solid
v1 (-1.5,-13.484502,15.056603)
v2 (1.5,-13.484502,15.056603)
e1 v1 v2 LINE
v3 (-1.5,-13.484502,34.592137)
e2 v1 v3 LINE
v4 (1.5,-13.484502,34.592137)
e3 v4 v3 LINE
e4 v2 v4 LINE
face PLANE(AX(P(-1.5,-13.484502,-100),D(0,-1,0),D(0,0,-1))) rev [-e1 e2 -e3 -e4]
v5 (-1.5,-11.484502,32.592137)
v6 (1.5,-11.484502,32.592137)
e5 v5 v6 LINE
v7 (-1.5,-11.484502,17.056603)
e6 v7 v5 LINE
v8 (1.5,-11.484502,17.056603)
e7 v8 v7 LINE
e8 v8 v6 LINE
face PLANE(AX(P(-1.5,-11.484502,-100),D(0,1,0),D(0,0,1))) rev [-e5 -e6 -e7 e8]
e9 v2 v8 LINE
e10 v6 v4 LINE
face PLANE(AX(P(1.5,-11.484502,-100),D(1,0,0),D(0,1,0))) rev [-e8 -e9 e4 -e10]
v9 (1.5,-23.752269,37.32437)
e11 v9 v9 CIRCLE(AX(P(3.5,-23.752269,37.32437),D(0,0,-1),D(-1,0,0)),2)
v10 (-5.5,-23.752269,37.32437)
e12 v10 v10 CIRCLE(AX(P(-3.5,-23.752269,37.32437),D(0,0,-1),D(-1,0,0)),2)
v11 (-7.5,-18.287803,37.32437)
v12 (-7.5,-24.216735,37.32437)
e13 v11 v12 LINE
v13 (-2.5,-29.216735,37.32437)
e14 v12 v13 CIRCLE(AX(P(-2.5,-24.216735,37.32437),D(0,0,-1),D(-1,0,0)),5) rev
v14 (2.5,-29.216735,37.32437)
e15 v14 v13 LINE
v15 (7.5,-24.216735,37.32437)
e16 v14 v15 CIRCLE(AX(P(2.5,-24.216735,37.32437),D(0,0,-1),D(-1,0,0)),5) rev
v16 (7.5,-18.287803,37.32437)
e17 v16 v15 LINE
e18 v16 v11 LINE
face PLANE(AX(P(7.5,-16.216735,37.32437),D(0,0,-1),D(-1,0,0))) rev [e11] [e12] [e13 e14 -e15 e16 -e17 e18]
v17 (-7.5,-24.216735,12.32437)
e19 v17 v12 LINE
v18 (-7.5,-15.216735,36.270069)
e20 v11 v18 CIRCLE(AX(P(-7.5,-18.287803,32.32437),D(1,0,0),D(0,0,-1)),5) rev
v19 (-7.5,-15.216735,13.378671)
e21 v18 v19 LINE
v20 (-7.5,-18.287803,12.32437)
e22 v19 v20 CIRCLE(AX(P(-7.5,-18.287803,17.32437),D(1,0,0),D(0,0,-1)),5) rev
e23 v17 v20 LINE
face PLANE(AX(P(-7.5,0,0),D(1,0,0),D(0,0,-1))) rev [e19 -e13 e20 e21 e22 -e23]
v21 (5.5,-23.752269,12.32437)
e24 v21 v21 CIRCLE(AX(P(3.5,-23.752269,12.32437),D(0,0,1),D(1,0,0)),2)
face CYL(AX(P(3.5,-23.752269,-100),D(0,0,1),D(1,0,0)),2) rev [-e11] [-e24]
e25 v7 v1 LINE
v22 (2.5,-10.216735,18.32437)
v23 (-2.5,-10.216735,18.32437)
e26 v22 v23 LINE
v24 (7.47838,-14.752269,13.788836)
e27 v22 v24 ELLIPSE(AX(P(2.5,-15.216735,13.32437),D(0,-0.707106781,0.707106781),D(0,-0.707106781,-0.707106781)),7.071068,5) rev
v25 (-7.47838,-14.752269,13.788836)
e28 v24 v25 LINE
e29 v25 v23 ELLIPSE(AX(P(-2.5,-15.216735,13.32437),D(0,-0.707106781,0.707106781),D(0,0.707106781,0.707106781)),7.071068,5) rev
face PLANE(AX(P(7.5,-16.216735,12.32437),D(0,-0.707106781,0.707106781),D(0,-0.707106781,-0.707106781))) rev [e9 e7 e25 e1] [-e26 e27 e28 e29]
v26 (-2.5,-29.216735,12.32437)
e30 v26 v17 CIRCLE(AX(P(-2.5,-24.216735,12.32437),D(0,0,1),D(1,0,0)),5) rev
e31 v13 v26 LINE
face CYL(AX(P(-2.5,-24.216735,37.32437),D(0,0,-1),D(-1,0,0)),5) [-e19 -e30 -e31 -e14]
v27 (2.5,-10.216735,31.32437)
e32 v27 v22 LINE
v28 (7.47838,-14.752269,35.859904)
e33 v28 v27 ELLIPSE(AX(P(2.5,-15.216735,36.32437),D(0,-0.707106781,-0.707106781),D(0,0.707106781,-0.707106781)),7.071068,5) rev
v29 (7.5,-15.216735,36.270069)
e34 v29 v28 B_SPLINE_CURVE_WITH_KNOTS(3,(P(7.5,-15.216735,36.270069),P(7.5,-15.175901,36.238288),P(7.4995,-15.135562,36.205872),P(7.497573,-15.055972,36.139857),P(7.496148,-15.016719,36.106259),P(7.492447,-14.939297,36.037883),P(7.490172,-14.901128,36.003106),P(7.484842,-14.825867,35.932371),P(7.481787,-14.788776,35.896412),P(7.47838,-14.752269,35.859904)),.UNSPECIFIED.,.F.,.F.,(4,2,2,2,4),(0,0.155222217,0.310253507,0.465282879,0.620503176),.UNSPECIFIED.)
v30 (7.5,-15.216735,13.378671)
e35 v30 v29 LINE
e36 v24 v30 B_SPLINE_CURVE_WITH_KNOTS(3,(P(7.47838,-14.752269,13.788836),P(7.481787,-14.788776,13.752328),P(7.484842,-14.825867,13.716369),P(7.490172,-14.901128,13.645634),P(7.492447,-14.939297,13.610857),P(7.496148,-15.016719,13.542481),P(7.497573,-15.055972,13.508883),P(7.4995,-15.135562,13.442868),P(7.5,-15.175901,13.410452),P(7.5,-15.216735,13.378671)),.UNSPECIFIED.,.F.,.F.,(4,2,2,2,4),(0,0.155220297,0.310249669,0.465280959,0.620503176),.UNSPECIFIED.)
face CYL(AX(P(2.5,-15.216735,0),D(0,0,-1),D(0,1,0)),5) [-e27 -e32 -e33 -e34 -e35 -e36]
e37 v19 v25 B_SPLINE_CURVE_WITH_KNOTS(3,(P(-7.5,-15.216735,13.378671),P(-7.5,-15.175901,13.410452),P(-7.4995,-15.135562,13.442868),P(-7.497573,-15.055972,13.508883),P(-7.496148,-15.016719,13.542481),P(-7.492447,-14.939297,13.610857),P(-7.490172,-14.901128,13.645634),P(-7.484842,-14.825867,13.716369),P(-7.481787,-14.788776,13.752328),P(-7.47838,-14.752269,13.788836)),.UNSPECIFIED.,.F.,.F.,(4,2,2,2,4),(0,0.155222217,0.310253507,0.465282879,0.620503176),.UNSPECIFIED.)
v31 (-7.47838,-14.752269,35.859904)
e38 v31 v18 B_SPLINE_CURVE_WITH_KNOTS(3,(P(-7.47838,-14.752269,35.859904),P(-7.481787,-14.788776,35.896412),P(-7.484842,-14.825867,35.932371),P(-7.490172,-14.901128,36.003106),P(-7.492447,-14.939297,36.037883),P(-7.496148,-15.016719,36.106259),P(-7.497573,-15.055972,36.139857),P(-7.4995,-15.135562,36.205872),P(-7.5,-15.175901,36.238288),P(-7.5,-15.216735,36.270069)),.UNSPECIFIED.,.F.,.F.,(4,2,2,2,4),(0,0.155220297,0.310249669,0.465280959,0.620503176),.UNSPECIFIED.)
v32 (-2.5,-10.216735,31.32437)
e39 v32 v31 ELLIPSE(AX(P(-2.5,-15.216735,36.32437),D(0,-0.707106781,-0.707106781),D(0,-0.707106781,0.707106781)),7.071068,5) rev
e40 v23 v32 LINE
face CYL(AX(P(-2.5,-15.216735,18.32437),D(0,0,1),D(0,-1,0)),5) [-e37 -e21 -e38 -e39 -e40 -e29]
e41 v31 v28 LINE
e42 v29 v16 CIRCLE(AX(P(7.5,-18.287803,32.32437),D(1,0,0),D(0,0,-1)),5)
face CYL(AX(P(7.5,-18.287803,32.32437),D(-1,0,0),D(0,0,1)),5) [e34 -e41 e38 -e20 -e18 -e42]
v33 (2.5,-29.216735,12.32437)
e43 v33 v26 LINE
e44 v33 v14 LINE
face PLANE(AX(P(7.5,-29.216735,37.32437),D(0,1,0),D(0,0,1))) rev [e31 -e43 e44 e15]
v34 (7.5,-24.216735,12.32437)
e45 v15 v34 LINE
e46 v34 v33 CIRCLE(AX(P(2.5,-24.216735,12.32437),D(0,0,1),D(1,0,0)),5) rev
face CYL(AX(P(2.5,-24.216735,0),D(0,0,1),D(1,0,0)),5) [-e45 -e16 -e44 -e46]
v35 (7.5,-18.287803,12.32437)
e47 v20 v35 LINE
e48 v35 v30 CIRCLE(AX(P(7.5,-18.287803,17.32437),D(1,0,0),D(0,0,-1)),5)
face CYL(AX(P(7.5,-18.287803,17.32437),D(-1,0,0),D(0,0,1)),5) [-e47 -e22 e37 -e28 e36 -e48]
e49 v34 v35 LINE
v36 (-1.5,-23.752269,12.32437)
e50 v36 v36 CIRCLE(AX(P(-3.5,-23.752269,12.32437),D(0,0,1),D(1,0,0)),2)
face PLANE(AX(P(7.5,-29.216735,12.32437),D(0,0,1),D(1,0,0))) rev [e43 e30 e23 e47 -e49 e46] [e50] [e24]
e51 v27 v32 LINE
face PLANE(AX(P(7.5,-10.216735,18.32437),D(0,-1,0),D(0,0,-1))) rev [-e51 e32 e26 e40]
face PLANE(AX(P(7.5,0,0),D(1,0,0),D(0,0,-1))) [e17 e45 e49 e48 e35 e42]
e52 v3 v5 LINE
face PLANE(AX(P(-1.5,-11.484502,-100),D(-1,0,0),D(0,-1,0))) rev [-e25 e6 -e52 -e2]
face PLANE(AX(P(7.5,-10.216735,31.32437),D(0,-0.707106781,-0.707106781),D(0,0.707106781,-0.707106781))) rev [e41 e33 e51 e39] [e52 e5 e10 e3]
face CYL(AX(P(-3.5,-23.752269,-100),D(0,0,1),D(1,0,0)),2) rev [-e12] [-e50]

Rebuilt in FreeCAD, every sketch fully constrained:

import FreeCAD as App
import Part
import Sketcher


def edges_at(feature, points):
    """Names of the edges that pass closest to the given points."""
    edges = feature.Shape.Edges
    near = lambda p: min(range(len(edges)), key=lambda i: edges[i].distToShape(Part.Vertex(*p))[0])
    return sorted({f"Edge{near(p) + 1}" for p in points})

doc = App.newDocument("Part")
params = doc.addObject("Spreadsheet::Sheet", "Params")
for row, (alias, value) in enumerate([
    ("sketch1_width", "13 mm"),
    ("sketch1_height", "25 mm"),
    ("pad1_length", "15 mm"),
    ("fillet_radius", "5 mm"),
    ("sketch2_diameter", "4 mm"),
    ("sketch2_width", "3 mm"),
    ("sketch2_height", "2 mm"),
    ("pocket1_length", "200 mm"),
    ("fillet2_radius", "5 mm"),
    ("fillet3_radius", "5 mm"),
], start=1):
    params.set(f"A{row}", alias)
    params.set(f"B{row}", "=" + value)
    params.setAlias(f"B{row}", alias)

body = doc.addObject("PartDesign::Body", "Body")

sketch1 = body.newObject("Sketcher::SketchObject", "Sketch")
sketch1.AttachmentSupport = (doc.getObject("YZ_Plane"), [""])
sketch1.MapMode = "FlatFace"
sketch1.addGeometry([
    Part.LineSegment(App.Vector(-10.216735, 31.32437, 0), App.Vector(-16.216735, 37.32437, 0)),
    Part.LineSegment(App.Vector(-16.216735, 37.32437, 0), App.Vector(-29.216735, 37.32437, 0)),
    Part.LineSegment(App.Vector(-29.216735, 37.32437, 0), App.Vector(-29.216735, 12.32437, 0)),
    Part.LineSegment(App.Vector(-29.216735, 12.32437, 0), App.Vector(-16.216735, 12.32437, 0)),
    Part.LineSegment(App.Vector(-16.216735, 12.32437, 0), App.Vector(-10.216735, 18.32437, 0)),
    Part.LineSegment(App.Vector(-10.216735, 18.32437, 0), App.Vector(-10.216735, 31.32437, 0)),
], False)
sketch1.addConstraint([
    Sketcher.Constraint("Coincident", 0, 2, 1, 1),
    Sketcher.Constraint("Coincident", 1, 2, 2, 1),
    Sketcher.Constraint("Coincident", 2, 2, 3, 1),
    Sketcher.Constraint("Coincident", 3, 2, 4, 1),
    Sketcher.Constraint("Coincident", 4, 2, 5, 1),
    Sketcher.Constraint("Coincident", 5, 2, 0, 1),
    Sketcher.Constraint("Horizontal", 1),
    Sketcher.Constraint("Vertical", 2),
    Sketcher.Constraint("Horizontal", 3),
    Sketcher.Constraint("Vertical", 5),
    Sketcher.Constraint("Perpendicular", 0, 4),
    Sketcher.Constraint("Vertical", 0, 2, 3, 2),
    Sketcher.Constraint("Equal", 3, 5),
    Sketcher.Constraint("Equal", 0, 4),
    Sketcher.Constraint("DistanceX", 1, 2, 1, 1, 13.0),
    Sketcher.Constraint("DistanceY", 2, 2, 2, 1, 25.0),
    Sketcher.Constraint("DistanceY", -1, 1, 0, 2, 37.32437),
    Sketcher.Constraint("DistanceX", 0, 2, -1, 1, 16.216735),
])
sketch1.setExpression("Constraints[14]", "Params.sketch1_width")
sketch1.setExpression("Constraints[15]", "Params.sketch1_height")
pad1 = body.newObject("PartDesign::Pad", "Pad")
pad1.Profile = sketch1
pad1.setExpression("Length", "Params.pad1_length")
pad1.Midplane = True
doc.recompute()

fillet = body.newObject("PartDesign::Fillet", "Fillet")
fillet.Base = (pad1, edges_at(pad1, [(0, -16.217, 12.324), (0, -16.217, 37.324)]))
fillet.setExpression("Radius", "Params.fillet_radius")

sketch2 = body.newObject("Sketcher::SketchObject", "Sketch001")
sketch2.AttachmentSupport = (doc.getObject("XY_Plane"), [""])
sketch2.MapMode = "FlatFace"
sketch2.addGeometry([
    Part.Circle(App.Vector(-3.5, -23.752269, 0), App.Vector(0, 0, 1), 2),
    Part.Circle(App.Vector(3.5, -23.752269, 0), App.Vector(0, 0, 1), 2),
    Part.LineSegment(App.Vector(-1.5, -11.484502, 0), App.Vector(-1.5, -13.484502, 0)),
    Part.LineSegment(App.Vector(-1.5, -13.484502, 0), App.Vector(1.5, -13.484502, 0)),
    Part.LineSegment(App.Vector(1.5, -13.484502, 0), App.Vector(1.5, -11.484502, 0)),
    Part.LineSegment(App.Vector(1.5, -11.484502, 0), App.Vector(-1.5, -11.484502, 0)),
], False)
sketch2.addConstraint([
    Sketcher.Constraint("Coincident", 2, 2, 3, 1),
    Sketcher.Constraint("Coincident", 3, 2, 4, 1),
    Sketcher.Constraint("Coincident", 4, 2, 5, 1),
    Sketcher.Constraint("Coincident", 5, 2, 2, 1),
    Sketcher.Constraint("Vertical", 2),
    Sketcher.Constraint("Horizontal", 3),
    Sketcher.Constraint("Vertical", 4),
    Sketcher.Constraint("Horizontal", 5),
    Sketcher.Constraint("Equal", 0, 1),
    Sketcher.Constraint("Symmetric", 0, 3, 1, 3, -2),
    Sketcher.Constraint("Diameter", 0, 4.0),
    Sketcher.Constraint("DistanceX", 3, 1, 3, 2, 3.0),
    Sketcher.Constraint("DistanceY", 2, 2, 2, 1, 2.0),
    Sketcher.Constraint("DistanceX", 0, 3, 1, 3, 7.0),
    Sketcher.Constraint("DistanceX", 0, 3, 2, 2, 2.0),
    Sketcher.Constraint("DistanceY", 2, 2, -1, 1, 13.484502),
    Sketcher.Constraint("DistanceY", 0, 3, -1, 1, 23.752269),
])
sketch2.setExpression("Constraints[10]", "Params.sketch2_diameter")
sketch2.setExpression("Constraints[11]", "Params.sketch2_width")
sketch2.setExpression("Constraints[12]", "Params.sketch2_height")
pocket1 = body.newObject("PartDesign::Pocket", "Pocket")
pocket1.Profile = sketch2
pocket1.setExpression("Length", "Params.pocket1_length")
pocket1.Midplane = True
doc.recompute()

fillet2 = body.newObject("PartDesign::Fillet", "Fillet001")
fillet2.Base = (pocket1, edges_at(pocket1, [(7.5, -29.217, 24.824), (-7.5, -29.217, 24.824)]))
fillet2.setExpression("Radius", "Params.fillet2_radius")
doc.recompute()

fillet3 = body.newObject("PartDesign::Fillet", "Fillet002")
fillet3.Base = (fillet2, edges_at(fillet2, [(7.5, -10.217, 24.824), (-7.5, -10.217, 24.824)]))
fillet3.setExpression("Radius", "Params.fillet3_radius")

doc.recompute()
